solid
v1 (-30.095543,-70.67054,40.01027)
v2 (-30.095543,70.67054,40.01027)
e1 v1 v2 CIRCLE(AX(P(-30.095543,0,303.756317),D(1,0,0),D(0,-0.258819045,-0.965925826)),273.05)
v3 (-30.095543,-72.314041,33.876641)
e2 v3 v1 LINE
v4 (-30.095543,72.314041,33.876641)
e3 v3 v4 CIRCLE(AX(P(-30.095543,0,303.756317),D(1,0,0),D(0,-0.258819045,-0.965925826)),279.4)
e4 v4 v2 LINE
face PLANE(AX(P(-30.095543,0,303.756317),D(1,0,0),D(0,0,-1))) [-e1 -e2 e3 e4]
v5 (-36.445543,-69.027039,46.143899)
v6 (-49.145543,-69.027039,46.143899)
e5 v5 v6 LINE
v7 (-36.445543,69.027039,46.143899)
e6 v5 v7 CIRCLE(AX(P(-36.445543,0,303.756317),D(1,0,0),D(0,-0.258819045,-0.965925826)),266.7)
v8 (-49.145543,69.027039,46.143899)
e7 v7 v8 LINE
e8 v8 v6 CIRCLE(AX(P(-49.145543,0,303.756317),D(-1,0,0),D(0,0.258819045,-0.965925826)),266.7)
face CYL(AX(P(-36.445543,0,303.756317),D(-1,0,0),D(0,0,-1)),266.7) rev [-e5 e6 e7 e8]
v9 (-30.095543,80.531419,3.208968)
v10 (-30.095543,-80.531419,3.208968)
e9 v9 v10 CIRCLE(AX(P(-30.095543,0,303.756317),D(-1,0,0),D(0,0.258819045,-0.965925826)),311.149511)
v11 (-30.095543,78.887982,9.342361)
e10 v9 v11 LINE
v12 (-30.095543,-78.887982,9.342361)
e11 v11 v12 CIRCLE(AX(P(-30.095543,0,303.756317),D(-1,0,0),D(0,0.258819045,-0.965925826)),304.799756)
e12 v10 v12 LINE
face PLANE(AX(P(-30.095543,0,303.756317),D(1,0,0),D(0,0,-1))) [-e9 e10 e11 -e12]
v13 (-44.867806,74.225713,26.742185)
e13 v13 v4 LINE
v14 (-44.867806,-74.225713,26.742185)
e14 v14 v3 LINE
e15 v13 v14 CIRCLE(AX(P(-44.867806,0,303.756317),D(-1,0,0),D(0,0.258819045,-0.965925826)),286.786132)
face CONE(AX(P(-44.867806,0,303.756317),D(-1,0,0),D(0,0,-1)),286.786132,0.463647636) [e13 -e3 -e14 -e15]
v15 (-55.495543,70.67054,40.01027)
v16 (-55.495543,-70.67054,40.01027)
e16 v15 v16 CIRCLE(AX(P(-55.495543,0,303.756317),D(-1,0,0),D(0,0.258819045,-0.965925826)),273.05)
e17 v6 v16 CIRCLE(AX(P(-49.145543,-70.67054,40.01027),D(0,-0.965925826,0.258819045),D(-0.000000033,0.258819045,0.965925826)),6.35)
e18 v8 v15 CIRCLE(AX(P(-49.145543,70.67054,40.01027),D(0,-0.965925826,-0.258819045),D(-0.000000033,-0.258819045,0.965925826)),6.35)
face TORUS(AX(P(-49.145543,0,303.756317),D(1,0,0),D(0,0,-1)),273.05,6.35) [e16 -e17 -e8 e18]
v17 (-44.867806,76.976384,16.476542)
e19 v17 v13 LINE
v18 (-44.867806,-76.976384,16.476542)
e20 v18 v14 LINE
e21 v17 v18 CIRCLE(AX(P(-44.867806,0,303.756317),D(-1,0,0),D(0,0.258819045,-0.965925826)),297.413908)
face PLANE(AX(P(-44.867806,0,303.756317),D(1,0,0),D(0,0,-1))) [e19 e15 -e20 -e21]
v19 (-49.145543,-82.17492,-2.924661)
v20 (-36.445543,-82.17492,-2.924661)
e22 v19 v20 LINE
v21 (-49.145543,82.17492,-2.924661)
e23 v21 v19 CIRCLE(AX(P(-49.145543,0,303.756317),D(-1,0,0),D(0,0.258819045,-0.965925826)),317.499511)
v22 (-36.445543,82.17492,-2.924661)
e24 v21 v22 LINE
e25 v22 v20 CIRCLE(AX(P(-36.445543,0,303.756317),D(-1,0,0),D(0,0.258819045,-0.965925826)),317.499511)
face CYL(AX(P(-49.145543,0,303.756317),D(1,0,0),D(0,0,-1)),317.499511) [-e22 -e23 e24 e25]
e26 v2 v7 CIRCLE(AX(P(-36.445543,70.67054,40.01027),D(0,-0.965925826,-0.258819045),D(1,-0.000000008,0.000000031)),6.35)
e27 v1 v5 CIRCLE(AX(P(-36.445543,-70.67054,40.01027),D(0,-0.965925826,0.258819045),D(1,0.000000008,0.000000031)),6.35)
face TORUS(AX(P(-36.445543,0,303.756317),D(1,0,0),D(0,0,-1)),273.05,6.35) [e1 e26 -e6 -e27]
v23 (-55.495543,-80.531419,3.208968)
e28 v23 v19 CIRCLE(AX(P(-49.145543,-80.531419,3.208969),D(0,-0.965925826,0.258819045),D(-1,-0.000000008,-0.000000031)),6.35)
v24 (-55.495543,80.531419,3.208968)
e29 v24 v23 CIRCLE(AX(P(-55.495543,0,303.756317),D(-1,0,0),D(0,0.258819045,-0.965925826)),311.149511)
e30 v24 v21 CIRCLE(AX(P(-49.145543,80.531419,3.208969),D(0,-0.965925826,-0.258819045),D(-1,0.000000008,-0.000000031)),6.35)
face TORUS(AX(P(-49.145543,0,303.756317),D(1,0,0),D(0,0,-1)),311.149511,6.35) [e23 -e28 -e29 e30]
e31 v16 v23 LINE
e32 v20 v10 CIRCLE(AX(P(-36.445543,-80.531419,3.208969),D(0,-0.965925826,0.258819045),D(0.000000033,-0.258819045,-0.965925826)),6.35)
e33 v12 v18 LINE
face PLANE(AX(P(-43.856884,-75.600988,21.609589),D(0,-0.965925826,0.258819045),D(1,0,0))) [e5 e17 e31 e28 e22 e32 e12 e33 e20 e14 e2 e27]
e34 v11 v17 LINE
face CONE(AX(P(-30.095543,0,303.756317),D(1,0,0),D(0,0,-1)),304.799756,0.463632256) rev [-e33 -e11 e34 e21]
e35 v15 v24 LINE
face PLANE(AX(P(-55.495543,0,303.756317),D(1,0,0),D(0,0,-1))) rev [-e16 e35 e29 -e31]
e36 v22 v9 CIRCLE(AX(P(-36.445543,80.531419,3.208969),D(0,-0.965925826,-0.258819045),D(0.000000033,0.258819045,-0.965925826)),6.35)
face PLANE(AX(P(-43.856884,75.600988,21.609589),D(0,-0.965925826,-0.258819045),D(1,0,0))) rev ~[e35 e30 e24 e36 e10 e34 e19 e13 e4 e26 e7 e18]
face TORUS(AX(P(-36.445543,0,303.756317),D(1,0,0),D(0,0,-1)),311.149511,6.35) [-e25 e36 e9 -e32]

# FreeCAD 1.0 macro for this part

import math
import FreeCAD as App
import Part
import Sketcher
Q = App.Units.Quantity

doc = App.newDocument("Part")
params = doc.addObject("Spreadsheet::Sheet", "Params")
for row, (alias, value) in enumerate([
    ("sketch1_width", "1 in"),
    ("sketch1_radius", "0.25 in"),
    ("sketch1_height", "0.25 in"),
    ("revolution_angle", "15 deg"),
    ("sketch2_width", "1 in"),
    ("sketch2_radius", "0.25 in"),
    ("sketch2_height", "0.25 in"),
    ("revolution2_angle", "15 deg"),
], start=1):
    params.set(f"A{row}", alias)
    params.set(f"B{row}", "=" + value)
    params.setAlias(f"B{row}", alias)

body = doc.addObject("PartDesign::Body", "Body")

# Sketch on XZ plane
sketch1 = body.newObject("Sketcher::SketchObject", "Sketch")
sketch1.AttachmentSupport = (doc.getObject("XZ_Plane"), [""])
sketch1.MapMode = "FlatFace"
sketch1.addGeometry(Part.LineSegment(App.Vector(-36.445543, 37.056317, 0), App.Vector(-49.145543, 37.056317, 0)), False)
sketch1.addGeometry(Part.ArcOfCircle(Part.Circle(App.Vector(-49.145543, 30.706317, 0), App.Vector(0, 0, 1), 6.35), math.radians(90.000002), math.radians(179.999998)), False)
sketch1.addGeometry(Part.LineSegment(App.Vector(-55.495543, 30.706317, 0), App.Vector(-55.495543, -7.393194, 0)), False)
sketch1.addGeometry(Part.ArcOfCircle(Part.Circle(App.Vector(-49.145543, -7.393194, 0), App.Vector(0, 0, 1), 6.35), math.radians(-179.999998), math.radians(-90.000002)), False)
sketch1.addGeometry(Part.LineSegment(App.Vector(-49.145543, -13.743194, 0), App.Vector(-36.445543, -13.743194, 0)), False)
sketch1.addGeometry(Part.ArcOfCircle(Part.Circle(App.Vector(-36.445543, -7.393194, 0), App.Vector(0, 0, 1), 6.35), math.radians(-89.999998), math.radians(-0.000002)), False)
sketch1.addGeometry(Part.LineSegment(App.Vector(-30.095543, -7.393194, 0), App.Vector(-30.095543, -1.043439, 0)), False)
sketch1.addGeometry(Part.LineSegment(App.Vector(-30.095543, -1.043439, 0), App.Vector(-44.867806, 6.342409, 0)), False)
sketch1.addGeometry(Part.LineSegment(App.Vector(-44.867806, 6.342409, 0), App.Vector(-44.867806, 16.970185, 0)), False)
sketch1.addGeometry(Part.LineSegment(App.Vector(-44.867806, 16.970185, 0), App.Vector(-30.095543, 24.356317, 0)), False)
sketch1.addGeometry(Part.LineSegment(App.Vector(-30.095543, 24.356317, 0), App.Vector(-30.095543, 30.706317, 0)), False)
sketch1.addGeometry(Part.ArcOfCircle(Part.Circle(App.Vector(-36.445543, 30.706317, 0), App.Vector(0, 0, 1), 6.35), math.radians(0.000002), math.radians(89.999998)), False)
sketch1.addGeometry(Part.LineSegment(App.Vector(-30.095543, 303.756317, 0), App.Vector(-55.495543, 303.756317, 0)), True)  # axis
sketch1.addConstraint(Sketcher.Constraint("Tangent", 0, 2, 1, 1))
sketch1.addConstraint(Sketcher.Constraint("Tangent", 1, 2, 2, 1))
sketch1.addConstraint(Sketcher.Constraint("Tangent", 2, 2, 3, 1))
sketch1.addConstraint(Sketcher.Constraint("Tangent", 3, 2, 4, 1))
sketch1.addConstraint(Sketcher.Constraint("Tangent", 4, 2, 5, 1))
sketch1.addConstraint(Sketcher.Constraint("Tangent", 5, 2, 6, 1))
sketch1.addConstraint(Sketcher.Constraint("Coincident", 6, 2, 7, 1))
sketch1.addConstraint(Sketcher.Constraint("Coincident", 7, 2, 8, 1))
sketch1.addConstraint(Sketcher.Constraint("Coincident", 8, 2, 9, 1))
sketch1.addConstraint(Sketcher.Constraint("Coincident", 9, 2, 10, 1))
sketch1.addConstraint(Sketcher.Constraint("Tangent", 10, 2, 11, 1))
sketch1.addConstraint(Sketcher.Constraint("Tangent", 11, 2, 0, 1))
sketch1.addConstraint(Sketcher.Constraint("Horizontal", 0))
sketch1.addConstraint(Sketcher.Constraint("Vertical", 2))
sketch1.addConstraint(Sketcher.Constraint("Horizontal", 4))
sketch1.addConstraint(Sketcher.Constraint("Vertical", 6))
sketch1.addConstraint(Sketcher.Constraint("Vertical", 8))
sketch1.addConstraint(Sketcher.Constraint("Vertical", 10))
sketch1.addConstraint(Sketcher.Constraint("Horizontal", 12))
sketch1.addConstraint(Sketcher.Constraint("Equal", 1, 3))
sketch1.addConstraint(Sketcher.Constraint("Equal", 3, 5))
sketch1.addConstraint(Sketcher.Constraint("Equal", 5, 11))
sketch1.addConstraint(Sketcher.Constraint("Vertical", 5, 3, 11, 3))
sketch1.addConstraint(Sketcher.Constraint("Vertical", 10, 2, 12, 1))
sketch1.addConstraint(Sketcher.Constraint("Vertical", 2, 2, 12, 2))
sketch1.addConstraint(Sketcher.Constraint("DistanceX", 12, 2, 12, 1, Q("1 in")))
sketch1.addConstraint(Sketcher.Constraint("Radius", 1, Q("0.25 in")))
sketch1.addConstraint(Sketcher.Constraint("DistanceY", 10, 1, 10, 2, Q("0.25 in")))
sketch1.addConstraint(Sketcher.Constraint("DistanceY", 11, 2, 12, 1, Q("10.5 in")))
sketch1.addConstraint(Sketcher.Constraint("DistanceY", 2, 2, 2, 1, 38.099511))
sketch1.addConstraint(Sketcher.Constraint("DistanceY", 6, 1, 6, 2, 6.349755))
sketch1.addConstraint(Sketcher.Constraint("DistanceY", 8, 1, 8, 2, 10.627776))
sketch1.addConstraint(Sketcher.Constraint("DistanceY", 6, 2, -1, 1, 1.043439))
sketch1.addConstraint(Sketcher.Constraint("DistanceY", -1, 1, 7, 2, 6.342409))
sketch1.addConstraint(Sketcher.Constraint("Distance", 7, 16.515765))
sketch1.addConstraint(Sketcher.Constraint("DistanceX", 1, 3, -1, 1, 49.145543))
sketch1.setExpression("Constraints[25]", "Params.sketch1_width")
sketch1.setExpression("Constraints[26]", "Params.sketch1_radius")
sketch1.setExpression("Constraints[27]", "Params.sketch1_height")
revolution = body.newObject("PartDesign::Revolution", "Revolution")
revolution.Profile = sketch1
revolution.ReferenceAxis = (sketch1, ["Axis0"])
revolution.setExpression("Angle", "Params.revolution_angle")

# Sketch on XZ plane
sketch2 = body.newObject("Sketcher::SketchObject", "Sketch001")
sketch2.AttachmentSupport = (doc.getObject("XZ_Plane"), [""])
sketch2.MapMode = "FlatFace"
sketch2.addGeometry(Part.LineSegment(App.Vector(-36.445543, 37.056317, 0), App.Vector(-49.145543, 37.056317, 0)), False)
sketch2.addGeometry(Part.ArcOfCircle(Part.Circle(App.Vector(-49.145543, 30.706317, 0), App.Vector(0, 0, 1), 6.35), math.radians(90.000002), math.radians(179.999998)), False)
sketch2.addGeometry(Part.LineSegment(App.Vector(-55.495543, 30.706317, 0), App.Vector(-55.495543, -7.393194, 0)), False)
sketch2.addGeometry(Part.ArcOfCircle(Part.Circle(App.Vector(-49.145543, -7.393194, 0), App.Vector(0, 0, 1), 6.35), math.radians(-179.999998), math.radians(-90.000002)), False)
sketch2.addGeometry(Part.LineSegment(App.Vector(-49.145543, -13.743194, 0), App.Vector(-36.445543, -13.743194, 0)), False)
sketch2.addGeometry(Part.ArcOfCircle(Part.Circle(App.Vector(-36.445543, -7.393194, 0), App.Vector(0, 0, 1), 6.35), math.radians(-89.999998), math.radians(-0.000002)), False)
sketch2.addGeometry(Part.LineSegment(App.Vector(-30.095543, -7.393194, 0), App.Vector(-30.095543, -1.043439, 0)), False)
sketch2.addGeometry(Part.LineSegment(App.Vector(-30.095543, -1.043439, 0), App.Vector(-44.867806, 6.342409, 0)), False)
sketch2.addGeometry(Part.LineSegment(App.Vector(-44.867806, 6.342409, 0), App.Vector(-44.867806, 16.970185, 0)), False)
sketch2.addGeometry(Part.LineSegment(App.Vector(-44.867806, 16.970185, 0), App.Vector(-30.095543, 24.356317, 0)), False)
sketch2.addGeometry(Part.LineSegment(App.Vector(-30.095543, 24.356317, 0), App.Vector(-30.095543, 30.706317, 0)), False)
sketch2.addGeometry(Part.ArcOfCircle(Part.Circle(App.Vector(-36.445543, 30.706317, 0), App.Vector(0, 0, 1), 6.35), math.radians(0.000002), math.radians(89.999998)), False)
sketch2.addGeometry(Part.LineSegment(App.Vector(-55.495543, 303.756317, 0), App.Vector(-30.095543, 303.756317, 0)), True)  # axis
sketch2.addConstraint(Sketcher.Constraint("Tangent", 0, 2, 1, 1))
sketch2.addConstraint(Sketcher.Constraint("Tangent", 1, 2, 2, 1))
sketch2.addConstraint(Sketcher.Constraint("Tangent", 2, 2, 3, 1))
sketch2.addConstraint(Sketcher.Constraint("Tangent", 3, 2, 4, 1))
sketch2.addConstraint(Sketcher.Constraint("Tangent", 4, 2, 5, 1))
sketch2.addConstraint(Sketcher.Constraint("Tangent", 5, 2, 6, 1))
sketch2.addConstraint(Sketcher.Constraint("Coincident", 6, 2, 7, 1))
sketch2.addConstraint(Sketcher.Constraint("Coincident", 7, 2, 8, 1))
sketch2.addConstraint(Sketcher.Constraint("Coincident", 8, 2, 9, 1))
sketch2.addConstraint(Sketcher.Constraint("Coincident", 9, 2, 10, 1))
sketch2.addConstraint(Sketcher.Constraint("Tangent", 10, 2, 11, 1))
sketch2.addConstraint(Sketcher.Constraint("Tangent", 11, 2, 0, 1))
sketch2.addConstraint(Sketcher.Constraint("Horizontal", 0))
sketch2.addConstraint(Sketcher.Constraint("Vertical", 2))
sketch2.addConstraint(Sketcher.Constraint("Horizontal", 4))
sketch2.addConstraint(Sketcher.Constraint("Vertical", 6))
sketch2.addConstraint(Sketcher.Constraint("Vertical", 8))
sketch2.addConstraint(Sketcher.Constraint("Vertical", 10))
sketch2.addConstraint(Sketcher.Constraint("Horizontal", 12))
sketch2.addConstraint(Sketcher.Constraint("Equal", 1, 3))
sketch2.addConstraint(Sketcher.Constraint("Equal", 3, 5))
sketch2.addConstraint(Sketcher.Constraint("Equal", 5, 11))
sketch2.addConstraint(Sketcher.Constraint("Vertical", 5, 3, 11, 3))
sketch2.addConstraint(Sketcher.Constraint("Vertical", 2, 2, 12, 1))
sketch2.addConstraint(Sketcher.Constraint("Vertical", 10, 2, 12, 2))
sketch2.addConstraint(Sketcher.Constraint("DistanceX", 12, 1, 12, 2, Q("1 in")))
sketch2.addConstraint(Sketcher.Constraint("Radius", 1, Q("0.25 in")))
sketch2.addConstraint(Sketcher.Constraint("DistanceY", 10, 1, 10, 2, Q("0.25 in")))
sketch2.addConstraint(Sketcher.Constraint("DistanceY", 0, 2, 12, 1, Q("10.5 in")))
sketch2.addConstraint(Sketcher.Constraint("DistanceY", 2, 2, 2, 1, 38.099511))
sketch2.addConstraint(Sketcher.Constraint("DistanceY", 6, 1, 6, 2, 6.349755))
sketch2.addConstraint(Sketcher.Constraint("DistanceY", 8, 1, 8, 2, 10.627776))
sketch2.addConstraint(Sketcher.Constraint("DistanceY", 6, 2, -1, 1, 1.043439))
sketch2.addConstraint(Sketcher.Constraint("DistanceY", -1, 1, 7, 2, 6.342409))
sketch2.addConstraint(Sketcher.Constraint("Distance", 7, 16.515765))
sketch2.addConstraint(Sketcher.Constraint("DistanceX", 1, 3, -1, 1, 49.145543))
sketch2.setExpression("Constraints[25]", "Params.sketch2_width")
sketch2.setExpression("Constraints[26]", "Params.sketch2_radius")
sketch2.setExpression("Constraints[27]", "Params.sketch2_height")
revolution2 = body.newObject("PartDesign::Revolution", "Revolution001")
revolution2.Profile = sketch2
revolution2.ReferenceAxis = (sketch2, ["Axis0"])
revolution2.setExpression("Angle", "Params.revolution2_angle")

doc.recompute()
